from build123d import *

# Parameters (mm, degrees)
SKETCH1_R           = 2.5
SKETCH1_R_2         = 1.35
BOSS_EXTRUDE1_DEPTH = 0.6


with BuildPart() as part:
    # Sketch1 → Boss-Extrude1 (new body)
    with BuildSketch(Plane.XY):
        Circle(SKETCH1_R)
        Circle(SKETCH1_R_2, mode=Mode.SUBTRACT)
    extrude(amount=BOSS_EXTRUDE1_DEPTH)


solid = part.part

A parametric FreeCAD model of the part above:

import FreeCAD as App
import Part
import Sketcher

V = App.Vector

doc = App.newDocument("Part")
params = doc.addObject("Spreadsheet::Sheet", "Params")
for row, (alias, value) in enumerate([
    ("sketch1_diameter", "5 mm"),
    ("sketch1_diameter2", "2.7 mm"),
    ("pad1_length", "0.6 mm"),
], start=1):
    params.set(f"A{row}", alias)
    params.set(f"B{row}", "=" + value)
    params.setAlias(f"B{row}", alias)

body = doc.addObject("PartDesign::Body", "Body")

# Sketch on XY plane
sketch1 = doc.addObject("Sketcher::SketchObject", "Sketch")
body.addObject(sketch1)
sketch1.AttachmentSupport = (doc.XY_Plane, [""])
sketch1.MapMode = "FlatFace"
sketch1.addGeometry([
    Part.Circle(V(0, 0, 0), V(0, 0, 1), 2.5),
    Part.Circle(V(0, 0, 0), V(0, 0, 1), 1.35),
], False)
sketch1.addConstraint([
    Sketcher.Constraint("Coincident", 0, 3, -1, 1),
    Sketcher.Constraint("Coincident", 1, 3, -1, 1),
    Sketcher.Constraint("Diameter", 0, 5.0),
    Sketcher.Constraint("Diameter", 1, 2.7),
])
sketch1.setExpression("Constraints[2]", "Params.sketch1_diameter")
sketch1.setExpression("Constraints[3]", "Params.sketch1_diameter2")
pad1 = doc.addObject("PartDesign::Pad", "Pad")
body.addObject(pad1)
pad1.Profile = sketch1
pad1.setExpression("Length", "Params.pad1_length")

doc.recompute()
